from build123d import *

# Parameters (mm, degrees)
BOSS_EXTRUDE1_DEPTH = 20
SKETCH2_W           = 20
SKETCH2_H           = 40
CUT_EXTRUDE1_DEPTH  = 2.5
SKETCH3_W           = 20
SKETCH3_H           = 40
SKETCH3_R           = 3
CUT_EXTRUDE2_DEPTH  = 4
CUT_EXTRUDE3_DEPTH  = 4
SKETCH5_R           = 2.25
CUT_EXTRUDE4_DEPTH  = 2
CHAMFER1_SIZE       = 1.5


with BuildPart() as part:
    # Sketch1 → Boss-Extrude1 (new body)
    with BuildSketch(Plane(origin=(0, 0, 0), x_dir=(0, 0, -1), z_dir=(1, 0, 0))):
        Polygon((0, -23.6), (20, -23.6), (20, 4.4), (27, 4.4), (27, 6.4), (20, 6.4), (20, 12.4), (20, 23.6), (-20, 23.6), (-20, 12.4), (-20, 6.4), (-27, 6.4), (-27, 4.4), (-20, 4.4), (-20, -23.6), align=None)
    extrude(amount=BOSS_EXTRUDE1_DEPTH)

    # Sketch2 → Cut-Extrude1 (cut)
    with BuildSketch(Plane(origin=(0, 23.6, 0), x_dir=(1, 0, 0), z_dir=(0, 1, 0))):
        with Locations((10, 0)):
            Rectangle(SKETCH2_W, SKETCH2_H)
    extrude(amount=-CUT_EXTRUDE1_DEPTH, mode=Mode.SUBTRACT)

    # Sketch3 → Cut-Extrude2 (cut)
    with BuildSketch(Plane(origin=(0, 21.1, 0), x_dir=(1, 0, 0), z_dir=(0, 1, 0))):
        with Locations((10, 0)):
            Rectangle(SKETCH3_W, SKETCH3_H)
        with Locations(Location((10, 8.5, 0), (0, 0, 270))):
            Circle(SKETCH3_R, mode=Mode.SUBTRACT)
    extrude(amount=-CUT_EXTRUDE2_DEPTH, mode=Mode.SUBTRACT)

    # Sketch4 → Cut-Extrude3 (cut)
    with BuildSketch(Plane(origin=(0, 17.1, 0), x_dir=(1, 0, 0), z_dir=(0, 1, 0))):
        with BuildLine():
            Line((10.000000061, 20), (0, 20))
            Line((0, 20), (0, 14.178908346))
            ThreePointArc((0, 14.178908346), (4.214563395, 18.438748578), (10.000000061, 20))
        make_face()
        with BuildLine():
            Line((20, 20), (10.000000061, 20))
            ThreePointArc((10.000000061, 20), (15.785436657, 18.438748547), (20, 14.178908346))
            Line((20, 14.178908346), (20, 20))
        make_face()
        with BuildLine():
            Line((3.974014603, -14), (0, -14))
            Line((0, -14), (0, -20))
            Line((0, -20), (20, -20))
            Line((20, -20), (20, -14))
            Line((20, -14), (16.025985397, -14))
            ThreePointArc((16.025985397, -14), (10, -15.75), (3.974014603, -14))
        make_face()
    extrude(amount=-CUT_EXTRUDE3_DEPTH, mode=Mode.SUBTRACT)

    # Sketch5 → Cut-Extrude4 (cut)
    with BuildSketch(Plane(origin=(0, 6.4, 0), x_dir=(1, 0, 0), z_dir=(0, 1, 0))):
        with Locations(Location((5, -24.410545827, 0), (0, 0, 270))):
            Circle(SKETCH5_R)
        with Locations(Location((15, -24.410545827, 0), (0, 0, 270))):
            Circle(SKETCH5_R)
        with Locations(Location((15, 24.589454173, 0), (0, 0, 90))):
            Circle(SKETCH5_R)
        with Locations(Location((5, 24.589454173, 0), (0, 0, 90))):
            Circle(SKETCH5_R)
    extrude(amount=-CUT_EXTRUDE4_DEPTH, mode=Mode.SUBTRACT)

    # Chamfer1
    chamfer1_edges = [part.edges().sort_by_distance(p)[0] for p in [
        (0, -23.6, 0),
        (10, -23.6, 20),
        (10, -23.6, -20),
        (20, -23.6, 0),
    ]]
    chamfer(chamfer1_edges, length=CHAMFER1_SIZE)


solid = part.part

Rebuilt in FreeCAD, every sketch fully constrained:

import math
import FreeCAD as App
import Part
import Sketcher
from FreeCAD import Vector
Q = App.Units.Quantity


def edges_at(feature, points):
    """Names of the edges that pass closest to the given points."""
    edges = feature.Shape.Edges
    near = lambda p: min(range(len(edges)), key=lambda i: edges[i].distToShape(Part.Vertex(*p))[0])
    return sorted({f"Edge{near(p) + 1}" for p in points})

doc = App.newDocument("Part")
body = doc.addObject("PartDesign::Body", "Body")

# Sketch on YZ plane
sketch1 = body.newObject("Sketcher::SketchObject", "Sketch")
sketch1.AttachmentSupport = (doc.getObject("YZ_Plane"), [""])
sketch1.MapMode = "FlatFace"
sketch1.addGeometry([
    Part.LineSegment(Vector(-23.6, -20, 0), Vector(4.4, -20, 0)),  # 0
    Part.LineSegment(Vector(4.4, -20, 0), Vector(4.4, -27, 0)),  # 1
    Part.LineSegment(Vector(4.4, -27, 0), Vector(6.4, -27, 0)),  # 2
    Part.LineSegment(Vector(6.4, -27, 0), Vector(6.4, -20, 0)),  # 3
    Part.LineSegment(Vector(6.4, -20, 0), Vector(23.6, -20, 0)),  # 4
    Part.LineSegment(Vector(23.6, -20, 0), Vector(23.6, 20, 0)),  # 5
    Part.LineSegment(Vector(23.6, 20, 0), Vector(6.4, 20, 0)),  # 6
    Part.LineSegment(Vector(6.4, 20, 0), Vector(6.4, 27, 0)),  # 7
    Part.LineSegment(Vector(6.4, 27, 0), Vector(4.4, 27, 0)),  # 8
    Part.LineSegment(Vector(4.4, 27, 0), Vector(4.4, 20, 0)),  # 9
    Part.LineSegment(Vector(4.4, 20, 0), Vector(-23.6, 20, 0)),  # 10
    Part.LineSegment(Vector(-23.6, 20, 0), Vector(-23.6, -20, 0)),  # 11
], False)
sketch1.addConstraint([
    Sketcher.Constraint("Coincident", 0, 2, 1, 1),
    Sketcher.Constraint("Coincident", 1, 2, 2, 1),
    Sketcher.Constraint("Coincident", 2, 2, 3, 1),
    Sketcher.Constraint("Coincident", 3, 2, 4, 1),
    Sketcher.Constraint("Coincident", 4, 2, 5, 1),
    Sketcher.Constraint("Coincident", 5, 2, 6, 1),
    Sketcher.Constraint("Coincident", 6, 2, 7, 1),
    Sketcher.Constraint("Coincident", 7, 2, 8, 1),
    Sketcher.Constraint("Coincident", 8, 2, 9, 1),
    Sketcher.Constraint("Coincident", 9, 2, 10, 1),
    Sketcher.Constraint("Coincident", 10, 2, 11, 1),
    Sketcher.Constraint("Coincident", 11, 2, 0, 1),
    Sketcher.Constraint("Horizontal", 0),
    Sketcher.Constraint("Vertical", 1),
    Sketcher.Constraint("Horizontal", 2),
    Sketcher.Constraint("Vertical", 3),
    Sketcher.Constraint("Horizontal", 4),
    Sketcher.Constraint("Vertical", 5),
    Sketcher.Constraint("Horizontal", 6),
    Sketcher.Constraint("Vertical", 7),
    Sketcher.Constraint("Horizontal", 8),
    Sketcher.Constraint("Vertical", 9),
    Sketcher.Constraint("Horizontal", 10),
    Sketcher.Constraint("Vertical", 11),
    Sketcher.Constraint("Symmetric", 4, 2, 10, 2, -1, 1),
    Sketcher.Constraint("Symmetric", 3, 2, 6, 2, -1),
    Sketcher.Constraint("Symmetric", 1, 2, 8, 2, -1),
    Sketcher.Constraint("Horizontal", 0, 2, 3, 2),
    Sketcher.Constraint("DistanceX", 0, 1, 0, 2, Q("28 mm")),
    Sketcher.Constraint("DistanceX", 2, 1, 2, 2, Q("2 mm")),
    Sketcher.Constraint("DistanceY", 1, 2, 1, 1, Q("7 mm")),
    Sketcher.Constraint("DistanceY", 5, 1, 5, 2, Q("40 mm")),
    Sketcher.Constraint("DistanceX", 4, 1, 4, 2, Q("17.2 mm")),
])
pad1 = body.newObject("PartDesign::Pad", "Pad")
pad1.Profile = sketch1
pad1.Length = 20

# Sketch on XZ plane
sketch2 = body.newObject("Sketcher::SketchObject", "Sketch001")
sketch2.AttachmentSupport = (doc.getObject("XZ_Plane"), [""])
sketch2.MapMode = "FlatFace"
sketch2.AttachmentOffset = App.Placement(Vector(0, 0, -23.6), App.Rotation())
sketch2.addGeometry([
    Part.LineSegment(Vector(0, -20, 0), Vector(0, 20, 0)),
    Part.LineSegment(Vector(0, 20, 0), Vector(20, 20, 0)),
    Part.LineSegment(Vector(20, 20, 0), Vector(20, -20, 0)),
    Part.LineSegment(Vector(20, -20, 0), Vector(0, -20, 0)),
], False)
sketch2.addConstraint([
    Sketcher.Constraint("Coincident", 0, 2, 1, 1),
    Sketcher.Constraint("Coincident", 1, 2, 2, 1),
    Sketcher.Constraint("Coincident", 2, 2, 3, 1),
    Sketcher.Constraint("Coincident", 3, 2, 0, 1),
    Sketcher.Constraint("Vertical", 0),
    Sketcher.Constraint("Horizontal", 1),
    Sketcher.Constraint("Vertical", 2),
    Sketcher.Constraint("Horizontal", 3),
    Sketcher.Constraint("Symmetric", 0, 2, 3, 2, -1, 1),
    Sketcher.Constraint("DistanceX", 1, 1, 1, 2, Q("20 mm")),
    Sketcher.Constraint("DistanceY", 0, 1, 0, 2, Q("40 mm")),
])
pocket1 = body.newObject("PartDesign::Pocket", "Pocket")
pocket1.Profile = sketch2
pocket1.Length = 2.5
pocket1.Reversed = True

# Sketch on XZ plane
sketch3 = body.newObject("Sketcher::SketchObject", "Sketch002")
sketch3.AttachmentSupport = (doc.getObject("XZ_Plane"), [""])
sketch3.MapMode = "FlatFace"
sketch3.AttachmentOffset = App.Placement(Vector(0, 0, -21.1), App.Rotation())
sketch3.addGeometry([
    Part.LineSegment(Vector(0, -20, 0), Vector(0, 20, 0)),  # 0
    Part.LineSegment(Vector(0, 20, 0), Vector(20, 20, 0)),  # 1
    Part.LineSegment(Vector(20, 20, 0), Vector(20, -20, 0)),  # 2
    Part.LineSegment(Vector(20, -20, 0), Vector(0, -20, 0)),  # 3
    Part.Circle(Vector(10, -8.5, 0), Vector(0, 0, 1), 3),  # 4
], False)
sketch3.addConstraint([
    Sketcher.Constraint("Coincident", 0, 2, 1, 1),
    Sketcher.Constraint("Coincident", 1, 2, 2, 1),
    Sketcher.Constraint("Coincident", 2, 2, 3, 1),
    Sketcher.Constraint("Coincident", 3, 2, 0, 1),
    Sketcher.Constraint("Vertical", 0),
    Sketcher.Constraint("Horizontal", 1),
    Sketcher.Constraint("Vertical", 2),
    Sketcher.Constraint("Horizontal", 3),
    Sketcher.Constraint("Symmetric", 0, 2, 3, 2, -1, 1),
    Sketcher.Constraint("Diameter", 4, Q("6 mm")),
    Sketcher.Constraint("DistanceX", 1, 1, 1, 2, Q("20 mm")),
    Sketcher.Constraint("DistanceY", 0, 1, 0, 2, Q("40 mm")),
    Sketcher.Constraint("DistanceX", -1, 1, 4, 3, Q("10 mm")),
    Sketcher.Constraint("DistanceY", 4, 3, -1, 1, Q("8.5 mm")),
])
pocket2 = body.newObject("PartDesign::Pocket", "Pocket001")
pocket2.Profile = sketch3
pocket2.Length = 4
pocket2.Reversed = True

# Sketch on XZ plane
sketch4 = body.newObject("Sketcher::SketchObject", "Sketch003")
sketch4.AttachmentSupport = (doc.getObject("XZ_Plane"), [""])
sketch4.MapMode = "FlatFace"
sketch4.AttachmentOffset = App.Placement(Vector(0, 0, -17.1), App.Rotation())
sketch4.addGeometry([
    Part.LineSegment(Vector(10, -20, 0), Vector(0, -20, 0)),  # 0
    Part.LineSegment(Vector(0, -20, 0), Vector(0, -14.2, 0)),  # 1
    Part.ArcOfCircle(Part.Circle(Vector(10, -8.5, 0), Vector(0, 0, 1), 11.5), math.radians(-150), math.radians(-90)),  # 2
    Part.LineSegment(Vector(20, -20, 0), Vector(10, -20, 0)),  # 3
    Part.ArcOfCircle(Part.Circle(Vector(10, -8.5, 0), Vector(0, 0, 1), 11.5), math.radians(-90), math.radians(-30)),  # 4
    Part.LineSegment(Vector(20, -14.2, 0), Vector(20, -20, 0)),  # 5
    Part.LineSegment(Vector(4, 14, 0), Vector(0, 14, 0)),  # 6
    Part.LineSegment(Vector(0, 14, 0), Vector(0, 20, 0)),  # 7
    Part.LineSegment(Vector(0, 20, 0), Vector(20, 20, 0)),  # 8
    Part.LineSegment(Vector(20, 20, 0), Vector(20, 14, 0)),  # 9
    Part.LineSegment(Vector(20, 14, 0), Vector(16, 14, 0)),  # 10
    Part.ArcOfCircle(Part.Circle(Vector(10, 4.5, 0), Vector(0, 0, 1), 11.3), math.radians(58), math.radians(122)),  # 11
], False)
sketch4.addConstraint([
    Sketcher.Constraint("Coincident", 0, 2, 1, 1),
    Sketcher.Constraint("Coincident", 1, 2, 2, 1),
    Sketcher.Constraint("Tangent", 2, 2, 0, 1),
    Sketcher.Constraint("Tangent", 3, 2, 4, 1),
    Sketcher.Constraint("Coincident", 4, 2, 5, 1),
    Sketcher.Constraint("Coincident", 5, 2, 3, 1),
    Sketcher.Constraint("Coincident", 6, 2, 7, 1),
    Sketcher.Constraint("Coincident", 7, 2, 8, 1),
    Sketcher.Constraint("Coincident", 8, 2, 9, 1),
    Sketcher.Constraint("Coincident", 9, 2, 10, 1),
    Sketcher.Constraint("Coincident", 10, 2, 11, 1),
    Sketcher.Constraint("Coincident", 11, 2, 6, 1),
    Sketcher.Constraint("Horizontal", 0),
    Sketcher.Constraint("Vertical", 1),
    Sketcher.Constraint("Horizontal", 3),
    Sketcher.Constraint("Vertical", 5),
    Sketcher.Constraint("Horizontal", 6),
    Sketcher.Constraint("Vertical", 7),
    Sketcher.Constraint("Horizontal", 8),
    Sketcher.Constraint("Vertical", 9),
    Sketcher.Constraint("Horizontal", 10),
    Sketcher.Constraint("Coincident", 4, 3, 2, 3),
    Sketcher.Constraint("Equal", 2, 4),
    Sketcher.Constraint("Symmetric", 0, 2, 7, 2, -1, 1),
    Sketcher.Constraint("PointOnObject", 0, 2, -2),
    Sketcher.Constraint("Horizontal", 1, 2, 4, 2),
    Sketcher.Constraint("Horizontal", 6, 2, 9, 2),
    Sketcher.Constraint("Vertical", 4, 3, 11, 3),
    Sketcher.Constraint("Vertical", 5, 2, 8, 2),
    Sketcher.Constraint("Radius", 2, Q("11.5 mm")),
    Sketcher.Constraint("DistanceX", 0, 2, 0, 1, Q("10 mm")),
    Sketcher.Constraint("DistanceY", 7, 1, 7, 2, Q("6 mm")),
    Sketcher.Constraint("Radius", 11, Q("11.25 mm")),
    Sketcher.Constraint("DistanceY", 0, 2, -1, 1, Q("20 mm")),
    Sketcher.Constraint("DistanceY", 4, 3, 11, 3, Q("13 mm")),
])
pocket3 = body.newObject("PartDesign::Pocket", "Pocket002")
pocket3.Profile = sketch4
pocket3.Length = 4
pocket3.Reversed = True

# Sketch on XZ plane
sketch5 = body.newObject("Sketcher::SketchObject", "Sketch004")
sketch5.AttachmentSupport = (doc.getObject("XZ_Plane"), [""])
sketch5.MapMode = "FlatFace"
sketch5.AttachmentOffset = App.Placement(Vector(0, 0, -6.4), App.Rotation())
sketch5.addGeometry([
    Part.Circle(Vector(5, 24.4, 0), Vector(0, 0, 1), 2.2),
    Part.Circle(Vector(15, 24.4, 0), Vector(0, 0, 1), 2.2),
    Part.Circle(Vector(15, -24.6, 0), Vector(0, 0, 1), 2.2),
    Part.Circle(Vector(5, -24.6, 0), Vector(0, 0, 1), 2.2),
], False)
sketch5.addConstraint([
    Sketcher.Constraint("Equal", 0, 1),
    Sketcher.Constraint("Equal", 1, 2),
    Sketcher.Constraint("Equal", 2, 3),
    Sketcher.Constraint("Horizontal", 0, 3, 1, 3),
    Sketcher.Constraint("Horizontal", 2, 3, 3, 3),
    Sketcher.Constraint("Vertical", 1, 3, 2, 3),
    Sketcher.Constraint("Vertical", 0, 3, 3, 3),
    Sketcher.Constraint("Diameter", 0, Q("4.5 mm")),
    Sketcher.Constraint("DistanceX", -1, 1, 0, 3, Q("5 mm")),
    Sketcher.Constraint("DistanceX", -1, 1, 1, 3, Q("15 mm")),
    Sketcher.Constraint("DistanceY", 2, 3, 1, 3, Q("49 mm")),
    Sketcher.Constraint("DistanceY", -1, 1, 0, 3, Q("24.410546 mm")),
])
pocket4 = body.newObject("PartDesign::Pocket", "Pocket003")
pocket4.Profile = sketch5
pocket4.Length = 2
pocket4.Reversed = True
doc.recompute()

chamfer = body.newObject("PartDesign::Chamfer", "Chamfer")
chamfer.Base = (pocket4, edges_at(pocket4, [
    (0, -23.6, 0),
    (10, -23.6, 20),
    (10, -23.6, -20),
    (20, -23.6, 0),
]))
chamfer.Size = 1.5

doc.recompute()
